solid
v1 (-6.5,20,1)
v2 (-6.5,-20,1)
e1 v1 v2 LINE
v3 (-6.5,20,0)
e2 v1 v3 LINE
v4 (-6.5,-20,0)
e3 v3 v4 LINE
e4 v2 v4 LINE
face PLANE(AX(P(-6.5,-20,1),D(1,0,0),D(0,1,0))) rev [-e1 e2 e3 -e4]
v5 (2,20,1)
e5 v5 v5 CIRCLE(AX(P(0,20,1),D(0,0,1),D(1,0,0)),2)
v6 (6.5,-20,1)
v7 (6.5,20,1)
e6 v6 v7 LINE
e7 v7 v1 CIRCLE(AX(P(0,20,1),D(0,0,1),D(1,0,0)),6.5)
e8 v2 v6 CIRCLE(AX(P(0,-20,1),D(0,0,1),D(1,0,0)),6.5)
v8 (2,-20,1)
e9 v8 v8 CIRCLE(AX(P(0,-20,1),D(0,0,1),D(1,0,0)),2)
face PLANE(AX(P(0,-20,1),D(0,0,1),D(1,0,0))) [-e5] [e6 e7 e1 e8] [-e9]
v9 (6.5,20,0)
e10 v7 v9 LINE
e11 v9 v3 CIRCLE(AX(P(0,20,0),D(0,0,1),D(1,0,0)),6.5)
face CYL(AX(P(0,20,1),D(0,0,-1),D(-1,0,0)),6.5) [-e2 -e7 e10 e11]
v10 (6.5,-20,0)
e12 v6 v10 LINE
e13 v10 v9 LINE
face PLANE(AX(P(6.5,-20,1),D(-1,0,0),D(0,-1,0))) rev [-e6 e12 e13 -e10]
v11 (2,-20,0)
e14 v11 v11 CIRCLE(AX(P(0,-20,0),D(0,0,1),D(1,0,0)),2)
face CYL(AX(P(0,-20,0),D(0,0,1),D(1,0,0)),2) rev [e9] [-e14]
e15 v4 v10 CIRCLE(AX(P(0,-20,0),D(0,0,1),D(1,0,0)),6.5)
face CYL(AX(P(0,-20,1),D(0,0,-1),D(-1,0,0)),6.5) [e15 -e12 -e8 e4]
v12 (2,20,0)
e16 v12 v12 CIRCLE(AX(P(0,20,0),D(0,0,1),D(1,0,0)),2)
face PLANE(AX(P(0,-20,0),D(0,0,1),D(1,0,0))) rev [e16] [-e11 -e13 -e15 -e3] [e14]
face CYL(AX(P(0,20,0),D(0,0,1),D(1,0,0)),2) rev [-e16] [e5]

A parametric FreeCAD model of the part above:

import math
import FreeCAD as App
import Part
import Sketcher
from FreeCAD import Vector
Q = App.Units.Quantity

doc = App.newDocument("Part")
params = doc.addObject("Spreadsheet::Sheet", "Params")
for row, (alias, value) in enumerate([
    ("sketch1_radius", "6.5 mm"),
    ("sketch1_height", "40 mm"),
    ("pad1_length", "1 mm"),
    ("sketch2_diameter", "4 mm"),
], start=1):
    params.set(f"A{row}", alias)
    params.set(f"B{row}", "=" + value)
    params.setAlias(f"B{row}", alias)

body = doc.addObject("PartDesign::Body", "Body")

# Sketch on XY plane
sketch1 = body.newObject("Sketcher::SketchObject", "Sketch")
sketch1.AttachmentSupport = (doc.getObject("XY_Plane"), [""])
sketch1.MapMode = "FlatFace"
sketch1.addGeometry(Part.LineSegment(Vector(-6, 20, 0), Vector(-6, -20, 0)), False)
sketch1.addGeometry(Part.ArcOfCircle(Part.Circle(Vector(0, -20, 0), Vector(0, 0, 1), 6), math.radians(180), math.radians(360)), False)
sketch1.addGeometry(Part.LineSegment(Vector(6, -20, 0), Vector(6, 20, 0)), False)
sketch1.addGeometry(Part.ArcOfCircle(Part.Circle(Vector(0, 20, 0), Vector(0, 0, 1), 6), math.radians(0), math.radians(180)), False)
sketch1.addConstraint(Sketcher.Constraint("Tangent", 0, 2, 1, 1))
sketch1.addConstraint(Sketcher.Constraint("Tangent", 1, 2, 2, 1))
sketch1.addConstraint(Sketcher.Constraint("Tangent", 2, 2, 3, 1))
sketch1.addConstraint(Sketcher.Constraint("Tangent", 3, 2, 0, 1))
sketch1.addConstraint(Sketcher.Constraint("Vertical", 0))
sketch1.addConstraint(Sketcher.Constraint("Vertical", 2))
sketch1.addConstraint(Sketcher.Constraint("Symmetric", 1, 3, 3, 3, -1, 1))
sketch1.addConstraint(Sketcher.Constraint("Radius", 1, Q("6.5 mm")))
sketch1.addConstraint(Sketcher.Constraint("DistanceY", 0, 2, 0, 1, Q("40 mm")))
sketch1.setExpression("Constraints[7]", "Params.sketch1_radius")
sketch1.setExpression("Constraints[8]", "Params.sketch1_height")
pad1 = body.newObject("PartDesign::Pad", "Pad")
pad1.Profile = sketch1
pad1.setExpression("Length", "Params.pad1_length")

# Sketch on XY plane
sketch2 = body.newObject("Sketcher::SketchObject", "Sketch001")
sketch2.AttachmentSupport = (doc.getObject("XY_Plane"), [""])
sketch2.MapMode = "FlatFace"
sketch2.AttachmentOffset = App.Placement(Vector(0, 0, 1), App.Rotation())
sketch2.addGeometry(Part.Circle(Vector(0, -20, 0), Vector(0, 0, 1), 2), False)
sketch2.addGeometry(Part.Circle(Vector(0, 20, 0), Vector(0, 0, 1), 2), False)
sketch2.addConstraint(Sketcher.Constraint("Equal", 0, 1))
sketch2.addConstraint(Sketcher.Constraint("Symmetric", 0, 3, 1, 3, -1, 1))
sketch2.addConstraint(Sketcher.Constraint("PointOnObject", 0, 3, -2))
sketch2.addConstraint(Sketcher.Constraint("Diameter", 0, Q("4 mm")))
sketch2.addConstraint(Sketcher.Constraint("DistanceY", 0, 3, -1, 1, Q("20 mm")))
sketch2.setExpression("Constraints[3]", "Params.sketch2_diameter")
pocket1 = body.newObject("PartDesign::Pocket", "Pocket")
pocket1.Profile = sketch2
pocket1.Type = "ThroughAll"

doc.recompute()
